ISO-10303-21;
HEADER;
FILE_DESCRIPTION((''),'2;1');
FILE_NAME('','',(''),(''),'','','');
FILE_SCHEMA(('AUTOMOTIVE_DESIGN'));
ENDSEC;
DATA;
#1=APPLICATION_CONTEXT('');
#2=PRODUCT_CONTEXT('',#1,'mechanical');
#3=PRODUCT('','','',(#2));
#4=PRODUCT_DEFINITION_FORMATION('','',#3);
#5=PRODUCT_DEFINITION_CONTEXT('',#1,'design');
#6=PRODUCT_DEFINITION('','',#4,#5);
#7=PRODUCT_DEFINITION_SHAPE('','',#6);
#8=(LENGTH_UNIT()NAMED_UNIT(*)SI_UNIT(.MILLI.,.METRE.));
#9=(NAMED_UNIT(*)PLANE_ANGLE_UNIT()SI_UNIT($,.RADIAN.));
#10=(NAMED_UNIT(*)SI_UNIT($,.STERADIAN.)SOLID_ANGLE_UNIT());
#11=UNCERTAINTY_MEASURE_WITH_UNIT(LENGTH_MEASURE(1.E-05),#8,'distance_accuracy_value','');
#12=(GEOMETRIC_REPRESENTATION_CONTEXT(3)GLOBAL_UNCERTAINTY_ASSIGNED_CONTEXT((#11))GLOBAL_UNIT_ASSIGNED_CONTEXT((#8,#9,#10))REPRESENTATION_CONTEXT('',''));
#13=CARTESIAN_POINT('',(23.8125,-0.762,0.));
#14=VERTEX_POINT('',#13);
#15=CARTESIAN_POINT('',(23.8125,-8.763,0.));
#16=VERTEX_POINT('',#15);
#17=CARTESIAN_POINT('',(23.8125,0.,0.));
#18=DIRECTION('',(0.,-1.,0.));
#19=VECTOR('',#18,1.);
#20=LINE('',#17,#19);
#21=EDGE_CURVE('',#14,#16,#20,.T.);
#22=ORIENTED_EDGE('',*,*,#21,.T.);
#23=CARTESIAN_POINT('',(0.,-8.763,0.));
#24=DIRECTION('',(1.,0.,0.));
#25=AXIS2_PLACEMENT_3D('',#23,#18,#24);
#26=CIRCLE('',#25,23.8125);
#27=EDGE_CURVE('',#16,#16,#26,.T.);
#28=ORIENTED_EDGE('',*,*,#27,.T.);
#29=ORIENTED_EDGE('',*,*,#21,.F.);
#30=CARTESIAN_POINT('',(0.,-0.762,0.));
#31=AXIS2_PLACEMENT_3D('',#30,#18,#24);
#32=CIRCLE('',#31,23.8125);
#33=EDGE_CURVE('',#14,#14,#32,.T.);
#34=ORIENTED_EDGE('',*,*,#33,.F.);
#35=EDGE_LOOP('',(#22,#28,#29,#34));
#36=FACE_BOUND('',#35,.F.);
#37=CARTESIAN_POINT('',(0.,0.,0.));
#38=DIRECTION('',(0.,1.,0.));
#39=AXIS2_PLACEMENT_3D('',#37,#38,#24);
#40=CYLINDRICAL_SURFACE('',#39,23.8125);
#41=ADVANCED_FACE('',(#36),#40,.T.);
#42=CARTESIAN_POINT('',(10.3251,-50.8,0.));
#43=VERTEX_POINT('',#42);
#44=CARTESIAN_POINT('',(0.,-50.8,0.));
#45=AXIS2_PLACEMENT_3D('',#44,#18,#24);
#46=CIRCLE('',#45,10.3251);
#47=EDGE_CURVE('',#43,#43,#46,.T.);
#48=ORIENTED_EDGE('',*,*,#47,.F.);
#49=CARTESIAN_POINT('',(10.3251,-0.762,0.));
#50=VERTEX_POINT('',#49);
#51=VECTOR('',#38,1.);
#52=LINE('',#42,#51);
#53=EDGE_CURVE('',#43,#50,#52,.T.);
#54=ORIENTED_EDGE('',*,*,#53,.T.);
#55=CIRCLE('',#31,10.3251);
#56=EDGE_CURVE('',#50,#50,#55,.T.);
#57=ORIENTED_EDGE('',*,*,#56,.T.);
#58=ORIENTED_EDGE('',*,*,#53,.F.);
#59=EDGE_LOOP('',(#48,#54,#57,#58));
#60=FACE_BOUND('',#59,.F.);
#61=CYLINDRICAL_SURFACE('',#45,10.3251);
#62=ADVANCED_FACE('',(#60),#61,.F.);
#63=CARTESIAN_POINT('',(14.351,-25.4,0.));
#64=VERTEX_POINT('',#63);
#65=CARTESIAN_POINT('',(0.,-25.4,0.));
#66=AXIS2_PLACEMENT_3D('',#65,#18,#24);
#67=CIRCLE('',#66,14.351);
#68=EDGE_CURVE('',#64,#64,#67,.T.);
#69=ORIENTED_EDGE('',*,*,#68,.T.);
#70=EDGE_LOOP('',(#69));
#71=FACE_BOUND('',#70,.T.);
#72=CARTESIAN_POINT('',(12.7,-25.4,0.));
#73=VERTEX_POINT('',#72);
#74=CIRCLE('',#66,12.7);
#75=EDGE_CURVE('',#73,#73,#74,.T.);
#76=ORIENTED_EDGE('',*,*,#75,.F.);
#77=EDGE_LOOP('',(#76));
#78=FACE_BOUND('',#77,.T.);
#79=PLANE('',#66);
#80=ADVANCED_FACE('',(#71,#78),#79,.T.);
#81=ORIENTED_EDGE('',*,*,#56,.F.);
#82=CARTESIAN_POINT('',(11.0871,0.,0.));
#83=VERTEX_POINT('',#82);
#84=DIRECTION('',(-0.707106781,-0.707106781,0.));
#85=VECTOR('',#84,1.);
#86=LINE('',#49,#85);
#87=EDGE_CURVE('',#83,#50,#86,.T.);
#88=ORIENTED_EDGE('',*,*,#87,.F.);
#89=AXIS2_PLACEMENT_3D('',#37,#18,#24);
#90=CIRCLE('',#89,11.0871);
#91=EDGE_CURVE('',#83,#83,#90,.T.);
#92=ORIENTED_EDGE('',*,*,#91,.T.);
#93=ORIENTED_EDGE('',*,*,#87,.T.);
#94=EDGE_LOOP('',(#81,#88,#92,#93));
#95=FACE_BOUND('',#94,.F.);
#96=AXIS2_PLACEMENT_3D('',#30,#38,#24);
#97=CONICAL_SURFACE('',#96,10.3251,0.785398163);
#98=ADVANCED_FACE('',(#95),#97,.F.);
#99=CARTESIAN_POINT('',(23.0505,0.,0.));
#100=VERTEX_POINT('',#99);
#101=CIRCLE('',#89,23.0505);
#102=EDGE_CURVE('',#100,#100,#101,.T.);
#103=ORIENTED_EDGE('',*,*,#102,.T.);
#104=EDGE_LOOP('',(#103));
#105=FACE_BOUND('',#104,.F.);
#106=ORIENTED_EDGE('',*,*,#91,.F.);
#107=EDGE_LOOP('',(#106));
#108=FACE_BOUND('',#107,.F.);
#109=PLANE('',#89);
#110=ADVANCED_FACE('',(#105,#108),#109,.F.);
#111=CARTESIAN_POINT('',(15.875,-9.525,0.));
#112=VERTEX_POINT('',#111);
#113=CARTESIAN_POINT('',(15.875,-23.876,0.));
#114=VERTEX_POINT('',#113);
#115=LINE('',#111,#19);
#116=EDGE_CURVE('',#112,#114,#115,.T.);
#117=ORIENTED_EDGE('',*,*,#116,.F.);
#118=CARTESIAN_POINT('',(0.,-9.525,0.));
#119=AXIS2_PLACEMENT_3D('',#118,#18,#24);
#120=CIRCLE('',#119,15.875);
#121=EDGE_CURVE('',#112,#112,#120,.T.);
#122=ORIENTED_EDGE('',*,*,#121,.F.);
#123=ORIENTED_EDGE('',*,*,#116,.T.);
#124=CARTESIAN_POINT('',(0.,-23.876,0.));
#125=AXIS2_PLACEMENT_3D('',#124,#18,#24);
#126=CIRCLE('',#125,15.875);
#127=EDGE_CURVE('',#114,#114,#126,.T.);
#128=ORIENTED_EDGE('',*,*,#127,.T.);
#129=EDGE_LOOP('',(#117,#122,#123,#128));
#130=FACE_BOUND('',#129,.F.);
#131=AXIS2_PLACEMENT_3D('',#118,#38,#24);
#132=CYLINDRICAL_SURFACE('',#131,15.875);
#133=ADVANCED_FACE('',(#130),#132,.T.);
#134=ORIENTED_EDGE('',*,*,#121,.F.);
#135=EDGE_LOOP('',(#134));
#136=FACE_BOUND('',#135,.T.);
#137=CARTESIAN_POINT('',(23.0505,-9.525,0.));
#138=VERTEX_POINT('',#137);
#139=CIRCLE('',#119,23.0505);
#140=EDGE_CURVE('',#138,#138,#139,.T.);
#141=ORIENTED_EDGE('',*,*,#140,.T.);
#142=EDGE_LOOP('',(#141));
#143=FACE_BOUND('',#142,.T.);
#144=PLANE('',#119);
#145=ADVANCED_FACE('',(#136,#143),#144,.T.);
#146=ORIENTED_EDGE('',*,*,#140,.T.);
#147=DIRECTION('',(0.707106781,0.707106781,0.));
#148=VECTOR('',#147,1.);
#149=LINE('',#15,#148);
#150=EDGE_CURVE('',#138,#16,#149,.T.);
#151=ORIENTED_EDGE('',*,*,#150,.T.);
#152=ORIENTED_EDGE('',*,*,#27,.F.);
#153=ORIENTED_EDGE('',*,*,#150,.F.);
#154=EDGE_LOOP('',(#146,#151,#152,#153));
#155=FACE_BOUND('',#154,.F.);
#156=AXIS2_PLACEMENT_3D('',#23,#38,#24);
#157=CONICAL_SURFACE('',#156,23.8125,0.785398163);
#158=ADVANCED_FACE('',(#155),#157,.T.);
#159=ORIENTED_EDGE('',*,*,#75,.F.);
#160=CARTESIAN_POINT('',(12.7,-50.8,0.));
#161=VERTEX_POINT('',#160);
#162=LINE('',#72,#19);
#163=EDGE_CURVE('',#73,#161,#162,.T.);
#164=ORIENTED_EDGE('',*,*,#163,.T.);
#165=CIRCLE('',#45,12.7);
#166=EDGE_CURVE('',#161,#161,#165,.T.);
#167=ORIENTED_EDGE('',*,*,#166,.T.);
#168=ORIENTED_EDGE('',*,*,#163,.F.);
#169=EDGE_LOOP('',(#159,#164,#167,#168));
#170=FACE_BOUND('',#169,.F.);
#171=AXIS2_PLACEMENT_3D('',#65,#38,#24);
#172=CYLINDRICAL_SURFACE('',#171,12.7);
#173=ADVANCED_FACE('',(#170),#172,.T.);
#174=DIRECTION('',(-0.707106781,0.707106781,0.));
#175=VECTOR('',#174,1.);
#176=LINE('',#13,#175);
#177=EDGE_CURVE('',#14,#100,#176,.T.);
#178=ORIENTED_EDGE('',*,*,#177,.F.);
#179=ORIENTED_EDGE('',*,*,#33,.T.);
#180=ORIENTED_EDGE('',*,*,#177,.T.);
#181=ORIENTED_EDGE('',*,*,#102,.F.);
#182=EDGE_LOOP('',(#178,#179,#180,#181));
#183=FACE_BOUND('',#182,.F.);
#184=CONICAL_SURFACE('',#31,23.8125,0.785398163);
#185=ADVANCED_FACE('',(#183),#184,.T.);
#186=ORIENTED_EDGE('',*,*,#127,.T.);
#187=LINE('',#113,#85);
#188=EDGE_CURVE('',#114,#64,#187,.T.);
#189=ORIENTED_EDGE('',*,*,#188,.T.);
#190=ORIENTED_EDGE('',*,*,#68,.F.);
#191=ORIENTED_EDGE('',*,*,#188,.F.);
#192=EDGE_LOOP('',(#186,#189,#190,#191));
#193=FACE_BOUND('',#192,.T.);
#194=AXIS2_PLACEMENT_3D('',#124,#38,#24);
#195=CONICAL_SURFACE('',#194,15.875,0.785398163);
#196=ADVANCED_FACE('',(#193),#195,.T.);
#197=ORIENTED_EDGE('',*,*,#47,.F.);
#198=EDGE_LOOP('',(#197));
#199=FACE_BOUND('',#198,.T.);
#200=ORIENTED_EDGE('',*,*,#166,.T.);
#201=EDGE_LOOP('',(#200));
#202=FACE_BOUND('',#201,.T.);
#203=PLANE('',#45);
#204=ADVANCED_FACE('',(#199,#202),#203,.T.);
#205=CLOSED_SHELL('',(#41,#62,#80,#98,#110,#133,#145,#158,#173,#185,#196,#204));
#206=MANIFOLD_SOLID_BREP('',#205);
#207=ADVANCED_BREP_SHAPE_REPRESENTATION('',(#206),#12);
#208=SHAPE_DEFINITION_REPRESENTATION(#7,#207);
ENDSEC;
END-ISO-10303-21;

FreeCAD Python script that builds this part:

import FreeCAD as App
import Part
import Sketcher
Q = App.Units.Quantity


def edges_at(feature, points):
    """Names of the edges that pass closest to the given points."""
    edges = feature.Shape.Edges
    near = lambda p: min(range(len(edges)), key=lambda i: edges[i].distToShape(Part.Vertex(*p))[0])
    return sorted({f"Edge{near(p) + 1}" for p in points})

doc = App.newDocument("Part")
params = doc.addObject("Spreadsheet::Sheet", "Params")
for row, (alias, value) in enumerate([
    ("sketch1_diameter", "1.875 in"),
    ("pad1_length", "0.375 in"),
    ("sketch2_diameter", "1.25 in"),
    ("pad2_length", "0.625 in"),
    ("sketch3_diameter", "1 in"),
    ("pad3_length", "1 in"),
    ("sketch4_diameter", "0.813 in"),
    ("chamfer_size", "0.06 in"),
    ("chamfer2_size", "0.03 in"),
], start=1):
    params.set(f"A{row}", alias)
    params.set(f"B{row}", "=" + value)
    params.setAlias(f"B{row}", alias)

body = doc.addObject("PartDesign::Body", "Body")

sketch1 = body.newObject("Sketcher::SketchObject", "Sketch")
sketch1.AttachmentSupport = (doc.getObject("XZ_Plane"), [""])
sketch1.MapMode = "FlatFace"
sketch1.addGeometry(Part.Circle(App.Vector(0, 0, 0), App.Vector(0, 0, 1), 24), False)
sketch1.addConstraint([
    Sketcher.Constraint("Coincident", 0, 3, -1, 1),
    Sketcher.Constraint("Diameter", 0, Q("1.875 in")),
])
sketch1.setExpression("Constraints[1]", "Params.sketch1_diameter")
pad1 = body.newObject("PartDesign::Pad", "Pad")
pad1.Profile = sketch1
pad1.setExpression("Length", "Params.pad1_length")

sketch2 = body.newObject("Sketcher::SketchObject", "Sketch001")
sketch2.AttachmentSupport = (doc.getObject("XZ_Plane"), [""])
sketch2.MapMode = "FlatFace"
sketch2.AttachmentOffset = App.Placement(App.Vector(0, 0, 0.375 * 25.4), App.Rotation())
sketch2.addGeometry(Part.Circle(App.Vector(0, 0, 0), App.Vector(0, 0, 1), 16), False)
sketch2.addConstraint([
    Sketcher.Constraint("Coincident", 0, 3, -1, 1),
    Sketcher.Constraint("Diameter", 0, Q("1.25 in")),
])
sketch2.setExpression("Constraints[1]", "Params.sketch2_diameter")
pad2 = body.newObject("PartDesign::Pad", "Pad001")
pad2.Profile = sketch2
pad2.setExpression("Length", "Params.pad2_length")

sketch3 = body.newObject("Sketcher::SketchObject", "Sketch002")
sketch3.AttachmentSupport = (doc.getObject("XZ_Plane"), [""])
sketch3.MapMode = "FlatFace"
sketch3.AttachmentOffset = App.Placement(App.Vector(0, 0, 1 * 25.4), App.Rotation())
sketch3.addGeometry(Part.Circle(App.Vector(0, 0, 0), App.Vector(0, 0, 1), 13), False)
sketch3.addConstraint([
    Sketcher.Constraint("Coincident", 0, 3, -1, 1),
    Sketcher.Constraint("Diameter", 0, Q("1 in")),
])
sketch3.setExpression("Constraints[1]", "Params.sketch3_diameter")
pad3 = body.newObject("PartDesign::Pad", "Pad002")
pad3.Profile = sketch3
pad3.setExpression("Length", "Params.pad3_length")

sketch4 = body.newObject("Sketcher::SketchObject", "Sketch003")
sketch4.AttachmentSupport = (doc.getObject("XZ_Plane"), [""])
sketch4.MapMode = "FlatFace"
sketch4.AttachmentOffset = App.Placement(App.Vector(0, 0, 2 * 25.4), App.Rotation())
sketch4.addGeometry(Part.Circle(App.Vector(0, 0, 0), App.Vector(0, 0, 1), 10), False)
sketch4.addConstraint([
    Sketcher.Constraint("Coincident", 0, 3, -1, 1),
    Sketcher.Constraint("Diameter", 0, Q("0.813 in")),
])
sketch4.setExpression("Constraints[1]", "Params.sketch4_diameter")
pocket1 = body.newObject("PartDesign::Pocket", "Pocket")
pocket1.Profile = sketch4
pocket1.Type = "ThroughAll"
doc.recompute()

chamfer = body.newObject("PartDesign::Chamfer", "Chamfer")
chamfer.Base = (pocket1, edges_at(pocket1, [(-15.875, -25.4, 0)]))
chamfer.setExpression("Size", "Params.chamfer_size")
doc.recompute()

chamfer2 = body.newObject("PartDesign::Chamfer", "Chamfer001")
chamfer2.Base = (chamfer, edges_at(chamfer, [(-23.812, -9.525, 0), (-23.812, 0, 0), (-10.325, 0, 0)]))
chamfer2.setExpression("Size", "Params.chamfer2_size")

doc.recompute()
